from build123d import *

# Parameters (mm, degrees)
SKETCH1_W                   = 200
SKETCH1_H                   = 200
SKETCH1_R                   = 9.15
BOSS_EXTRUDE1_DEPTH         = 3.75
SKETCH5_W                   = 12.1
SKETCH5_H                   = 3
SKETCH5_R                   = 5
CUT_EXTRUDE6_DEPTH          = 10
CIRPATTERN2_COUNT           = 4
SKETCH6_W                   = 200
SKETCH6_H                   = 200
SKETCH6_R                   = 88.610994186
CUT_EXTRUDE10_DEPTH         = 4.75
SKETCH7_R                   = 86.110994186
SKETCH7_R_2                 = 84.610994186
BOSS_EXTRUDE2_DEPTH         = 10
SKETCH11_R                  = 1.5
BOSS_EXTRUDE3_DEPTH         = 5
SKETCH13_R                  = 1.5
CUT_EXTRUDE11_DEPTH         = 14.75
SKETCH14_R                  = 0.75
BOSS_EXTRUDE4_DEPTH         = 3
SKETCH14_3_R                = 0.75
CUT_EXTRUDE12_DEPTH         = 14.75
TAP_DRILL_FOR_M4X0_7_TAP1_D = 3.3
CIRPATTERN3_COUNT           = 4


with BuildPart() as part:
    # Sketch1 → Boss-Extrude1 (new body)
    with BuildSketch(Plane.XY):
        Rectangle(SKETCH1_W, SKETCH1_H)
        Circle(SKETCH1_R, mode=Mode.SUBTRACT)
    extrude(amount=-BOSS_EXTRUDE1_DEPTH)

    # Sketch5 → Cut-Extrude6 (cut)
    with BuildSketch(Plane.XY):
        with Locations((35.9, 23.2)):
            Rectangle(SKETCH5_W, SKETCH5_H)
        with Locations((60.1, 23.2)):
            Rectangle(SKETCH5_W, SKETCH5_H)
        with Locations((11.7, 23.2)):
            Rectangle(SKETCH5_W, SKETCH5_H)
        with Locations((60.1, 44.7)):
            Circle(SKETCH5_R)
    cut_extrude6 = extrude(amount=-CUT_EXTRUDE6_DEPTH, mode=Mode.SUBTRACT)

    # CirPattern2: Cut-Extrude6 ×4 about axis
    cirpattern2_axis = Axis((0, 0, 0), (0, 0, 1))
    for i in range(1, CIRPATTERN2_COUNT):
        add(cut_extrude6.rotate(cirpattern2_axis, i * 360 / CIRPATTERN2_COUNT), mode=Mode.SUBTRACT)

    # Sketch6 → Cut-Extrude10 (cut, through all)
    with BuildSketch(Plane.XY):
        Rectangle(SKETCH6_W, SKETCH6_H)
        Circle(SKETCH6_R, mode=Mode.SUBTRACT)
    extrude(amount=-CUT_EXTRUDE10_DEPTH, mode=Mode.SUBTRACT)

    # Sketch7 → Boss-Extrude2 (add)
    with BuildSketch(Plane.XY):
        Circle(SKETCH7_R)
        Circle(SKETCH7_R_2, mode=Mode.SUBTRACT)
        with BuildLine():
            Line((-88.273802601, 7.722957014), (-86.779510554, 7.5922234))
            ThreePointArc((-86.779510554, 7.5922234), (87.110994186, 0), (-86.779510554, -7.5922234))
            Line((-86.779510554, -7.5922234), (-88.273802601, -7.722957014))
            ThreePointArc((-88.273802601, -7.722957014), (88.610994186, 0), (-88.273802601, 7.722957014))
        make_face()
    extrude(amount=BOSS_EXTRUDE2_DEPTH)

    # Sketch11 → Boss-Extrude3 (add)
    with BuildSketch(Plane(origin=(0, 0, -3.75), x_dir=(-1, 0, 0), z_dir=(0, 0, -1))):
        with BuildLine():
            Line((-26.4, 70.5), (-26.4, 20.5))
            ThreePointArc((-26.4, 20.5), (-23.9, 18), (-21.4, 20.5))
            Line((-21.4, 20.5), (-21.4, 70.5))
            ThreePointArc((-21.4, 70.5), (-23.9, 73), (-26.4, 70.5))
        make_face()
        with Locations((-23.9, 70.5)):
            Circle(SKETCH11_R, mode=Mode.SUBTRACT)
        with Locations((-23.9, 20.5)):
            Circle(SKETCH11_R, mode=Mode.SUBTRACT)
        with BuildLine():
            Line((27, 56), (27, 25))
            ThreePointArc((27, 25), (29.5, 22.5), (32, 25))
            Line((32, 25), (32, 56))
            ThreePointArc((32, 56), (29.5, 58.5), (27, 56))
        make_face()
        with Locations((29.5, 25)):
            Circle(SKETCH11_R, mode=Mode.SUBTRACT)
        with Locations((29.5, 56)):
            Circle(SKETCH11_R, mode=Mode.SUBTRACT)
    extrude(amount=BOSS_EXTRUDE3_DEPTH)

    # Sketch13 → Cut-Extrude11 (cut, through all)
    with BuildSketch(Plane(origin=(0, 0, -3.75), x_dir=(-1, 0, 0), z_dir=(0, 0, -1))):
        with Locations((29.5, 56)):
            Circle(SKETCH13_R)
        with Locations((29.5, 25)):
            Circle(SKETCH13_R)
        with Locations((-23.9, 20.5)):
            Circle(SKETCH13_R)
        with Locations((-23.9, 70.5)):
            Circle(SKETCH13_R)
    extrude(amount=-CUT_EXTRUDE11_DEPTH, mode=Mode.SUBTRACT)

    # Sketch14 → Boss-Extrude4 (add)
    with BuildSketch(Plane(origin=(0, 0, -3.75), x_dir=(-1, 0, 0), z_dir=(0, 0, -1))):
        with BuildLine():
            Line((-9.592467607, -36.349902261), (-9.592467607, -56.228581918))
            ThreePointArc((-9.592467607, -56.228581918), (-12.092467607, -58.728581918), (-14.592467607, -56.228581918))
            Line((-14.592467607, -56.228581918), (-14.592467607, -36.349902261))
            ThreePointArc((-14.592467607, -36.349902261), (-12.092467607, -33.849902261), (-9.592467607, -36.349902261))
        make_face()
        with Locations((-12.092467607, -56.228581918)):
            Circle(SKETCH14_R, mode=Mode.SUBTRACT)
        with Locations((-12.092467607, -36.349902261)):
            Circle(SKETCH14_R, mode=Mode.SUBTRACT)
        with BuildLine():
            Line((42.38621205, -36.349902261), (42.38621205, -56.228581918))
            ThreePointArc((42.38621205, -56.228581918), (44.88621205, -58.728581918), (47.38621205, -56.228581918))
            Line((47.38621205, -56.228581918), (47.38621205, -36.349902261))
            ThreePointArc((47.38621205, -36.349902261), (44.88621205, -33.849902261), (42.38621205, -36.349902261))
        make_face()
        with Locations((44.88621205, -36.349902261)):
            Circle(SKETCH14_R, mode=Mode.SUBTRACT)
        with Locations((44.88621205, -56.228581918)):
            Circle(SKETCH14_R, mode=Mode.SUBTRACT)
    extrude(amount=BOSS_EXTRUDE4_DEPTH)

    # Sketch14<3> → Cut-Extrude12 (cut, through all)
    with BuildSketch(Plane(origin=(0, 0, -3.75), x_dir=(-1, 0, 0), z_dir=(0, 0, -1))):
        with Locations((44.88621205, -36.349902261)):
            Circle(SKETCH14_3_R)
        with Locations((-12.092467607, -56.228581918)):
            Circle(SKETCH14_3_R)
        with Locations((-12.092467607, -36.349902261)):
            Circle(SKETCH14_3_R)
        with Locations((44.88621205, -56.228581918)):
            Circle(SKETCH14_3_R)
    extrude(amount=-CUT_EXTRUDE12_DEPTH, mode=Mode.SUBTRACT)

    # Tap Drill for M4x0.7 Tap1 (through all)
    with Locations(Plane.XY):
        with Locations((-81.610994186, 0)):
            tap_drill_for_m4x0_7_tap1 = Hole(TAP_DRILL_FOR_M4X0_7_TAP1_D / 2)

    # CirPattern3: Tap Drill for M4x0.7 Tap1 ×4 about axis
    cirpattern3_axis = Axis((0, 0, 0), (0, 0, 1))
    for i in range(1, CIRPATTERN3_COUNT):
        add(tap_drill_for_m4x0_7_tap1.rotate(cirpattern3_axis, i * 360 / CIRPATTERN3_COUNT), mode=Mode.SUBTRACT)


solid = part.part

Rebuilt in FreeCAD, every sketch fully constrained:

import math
import FreeCAD as App
import Part
import Sketcher

V = App.Vector
Q = App.Units.Quantity


def add_polygon(sketch, points):
    """Adds a closed chain of lines whose ends are joined by coincident constraints."""
    first, n = sketch.GeometryCount, len(points)
    for a, b in zip(points, points[1:] + points[:1]):
        sketch.addGeometry(Part.LineSegment(App.Vector(*a, 0), App.Vector(*b, 0)), False)
    for i in range(n):
        sketch.addConstraint(Sketcher.Constraint("Coincident", first + i, 2, first + (i + 1) % n, 1))

doc = App.newDocument("Part")
body = doc.addObject("PartDesign::Body", "Body")

# Sketch on XY plane
sketch1 = body.newObject("Sketcher::SketchObject", "Sketch")
sketch1.AttachmentSupport = (doc.getObject("XY_Plane"), [""])
sketch1.MapMode = "FlatFace"
add_polygon(sketch1, [(-100, 100), (-100, -100), (100, -100), (100, 100)])  # lines 0-3
sketch1.addGeometry(Part.Circle(V(0, 0, 0), V(0, 0, 1), 9), False)  # 4
sketch1.addConstraint([
    Sketcher.Constraint("Vertical", 0),
    Sketcher.Constraint("Horizontal", 1),
    Sketcher.Constraint("Vertical", 2),
    Sketcher.Constraint("Horizontal", 3),
    Sketcher.Constraint("Coincident", 4, 3, -1, 1),
    Sketcher.Constraint("Symmetric", 0, 2, 2, 2, -1, 1),
    Sketcher.Constraint("Equal", 3, 0),
    Sketcher.Constraint("Diameter", 4, Q("18.3 mm")),
    Sketcher.Constraint("DistanceX", 1, 1, 1, 2, Q("200 mm")),
])
pad1 = body.newObject("PartDesign::Pad", "Pad")
pad1.Profile = sketch1
pad1.Length = 3.75
pad1.Reversed = True

# Sketch on XY plane
sketch2 = body.newObject("Sketcher::SketchObject", "Sketch001")
sketch2.AttachmentSupport = (doc.getObject("XY_Plane"), [""])
sketch2.MapMode = "FlatFace"
add_polygon(sketch2, [(29.9, 24.7), (29.9, 21.7), (42, 21.7), (42, 24.7)])  # lines 0-3
add_polygon(sketch2, [(54, 24.7), (54, 21.7), (66.2, 21.7), (66.2, 24.7)])  # lines 4-7
add_polygon(sketch2, [(5.7, 24.7), (5.7, 21.7), (17.8, 21.7), (17.8, 24.7)])  # lines 8-11
sketch2.addGeometry(Part.Circle(V(60.1, 44.7, 0), V(0, 0, 1), 5), False)  # 12
sketch2.addConstraint([
    Sketcher.Constraint("Vertical", 0),
    Sketcher.Constraint("Horizontal", 1),
    Sketcher.Constraint("Vertical", 2),
    Sketcher.Constraint("Horizontal", 3),
    Sketcher.Constraint("Vertical", 4),
    Sketcher.Constraint("Horizontal", 5),
    Sketcher.Constraint("Vertical", 6),
    Sketcher.Constraint("Horizontal", 7),
    Sketcher.Constraint("Vertical", 8),
    Sketcher.Constraint("Horizontal", 9),
    Sketcher.Constraint("Vertical", 10),
    Sketcher.Constraint("Horizontal", 11),
    Sketcher.Constraint("Horizontal", 1, 2, 4, 2),
    Sketcher.Constraint("Horizontal", 3, 2, 6, 2),
    Sketcher.Constraint("Horizontal", 5, 2, 8, 2),
    Sketcher.Constraint("Horizontal", 7, 2, 10, 2),
    Sketcher.Constraint("Equal", 3, 5),
    Sketcher.Constraint("Equal", 7, 9),
    Sketcher.Constraint("Diameter", 12, Q("10 mm")),
    Sketcher.Constraint("DistanceY", 0, 2, 0, 1, Q("3 mm")),
    Sketcher.Constraint("DistanceX", 1, 1, 1, 2, Q("12.1 mm")),
    Sketcher.Constraint("DistanceY", 0, 2, 12, 3, Q("23 mm")),
    Sketcher.Constraint("DistanceX", -1, 1, 12, 3, Q("60.1 mm")),
    Sketcher.Constraint("DistanceY", -1, 1, 12, 3, Q("44.7 mm")),
    Sketcher.Constraint("DistanceX", 1, 2, 4, 2, Q("12.1 mm")),
    Sketcher.Constraint("DistanceX", 8, 2, 0, 2, Q("24.2 mm")),
    Sketcher.Constraint("DistanceX", -1, 1, 0, 2, Q("29.85 mm")),
])
pocket1 = body.newObject("PartDesign::Pocket", "Pocket")
pocket1.Profile = sketch2
pocket1.Length = 10
doc.recompute()

polarpattern = body.newObject("PartDesign::PolarPattern", "PolarPattern")
polarpattern.Originals = [pocket1]
polarpattern.Axis = (doc.getObject("Z_Axis"), [""])
polarpattern.Angle = 360
polarpattern.Occurrences = 4
body.Tip = polarpattern

# Sketch on XY plane
sketch3 = body.newObject("Sketcher::SketchObject", "Sketch002")
sketch3.AttachmentSupport = (doc.getObject("XY_Plane"), [""])
sketch3.MapMode = "FlatFace"
add_polygon(sketch3, [(-100, 100), (-100, -100), (100, -100), (100, 100)])  # lines 0-3
sketch3.addGeometry(Part.Circle(V(0, 0, 0), V(0, 0, 1), 89), False)  # 4
sketch3.addConstraint([
    Sketcher.Constraint("Vertical", 0),
    Sketcher.Constraint("Horizontal", 1),
    Sketcher.Constraint("Vertical", 2),
    Sketcher.Constraint("Horizontal", 3),
    Sketcher.Constraint("Coincident", 4, 3, -1, 1),
    Sketcher.Constraint("Symmetric", 0, 2, 2, 2, -1, 1),
    Sketcher.Constraint("Equal", 3, 0),
    Sketcher.Constraint("DistanceX", 1, 1, 1, 2, Q("200 mm")),
    Sketcher.Constraint("Diameter", 4, Q("177.221988 mm")),
])
pocket2 = body.newObject("PartDesign::Pocket", "Pocket001")
pocket2.Profile = sketch3
pocket2.Type = "ThroughAll"

# Sketch on XY plane
sketch4 = body.newObject("Sketcher::SketchObject", "Sketch003")
sketch4.AttachmentSupport = (doc.getObject("XY_Plane"), [""])
sketch4.MapMode = "FlatFace"
sketch4.addGeometry([
    Part.Circle(V(0, 0, 0), V(0, 0, 1), 86.1),  # 0
    Part.Circle(V(0, 0, 0), V(0, 0, 1), 84.6),  # 1
    Part.LineSegment(V(-88.3, 7.7, 0), V(-86.8, 7.6, 0)),  # 2
    Part.ArcOfCircle(Part.Circle(V(0, 0, 0), V(0, 0, 1), 87.1), math.radians(-175), math.radians(175)),  # 3
    Part.LineSegment(V(-86.8, -7.6, 0), V(-88.3, -7.7, 0)),  # 4
    Part.ArcOfCircle(Part.Circle(V(0, 0, 0), V(0, 0, 1), 88.6), math.radians(-175), math.radians(175)),  # 5
], False)
sketch4.addConstraint([
    Sketcher.Constraint("Coincident", 2, 2, 3, 2),
    Sketcher.Constraint("Coincident", 3, 1, 4, 1),
    Sketcher.Constraint("Coincident", 4, 2, 5, 1),
    Sketcher.Constraint("Coincident", 5, 2, 2, 1),
    Sketcher.Constraint("Coincident", 0, 3, -1, 1),
    Sketcher.Constraint("Coincident", 1, 3, -1, 1),
    Sketcher.Constraint("Coincident", 3, 3, -1, 1),
    Sketcher.Constraint("Coincident", 5, 3, -1, 1),
    Sketcher.Constraint("Vertical", 2, 2, 3, 1),
    Sketcher.Constraint("Vertical", 4, 2, 5, 2),
    Sketcher.Constraint("Angle", 2, Q("-5 deg")),
    Sketcher.Constraint("Distance", 2, Q("1.5 mm")),
    Sketcher.Constraint("Diameter", 0, Q("172.221988 mm")),
    Sketcher.Constraint("Diameter", 1, Q("169.221988 mm")),
    Sketcher.Constraint("Radius", 3, Q("87.110994 mm")),
    Sketcher.Constraint("DistanceX", 2, 2, -1, 1, Q("86.779511 mm")),
])
pad2 = body.newObject("PartDesign::Pad", "Pad001")
pad2.Profile = sketch4
pad2.Length = 10

# Sketch on XY plane
sketch5 = body.newObject("Sketcher::SketchObject", "Sketch004")
sketch5.AttachmentSupport = (doc.getObject("XY_Plane"), [""])
sketch5.MapMode = "FlatFace"
sketch5.AttachmentOffset = App.Placement(V(0, 0, -3.75), App.Rotation())
sketch5.addGeometry([
    Part.LineSegment(V(26.4, 70.5, 0), V(26.4, 20.5, 0)),  # 0
    Part.ArcOfCircle(Part.Circle(V(23.9, 20.5, 0), V(0, 0, 1), 2.5), math.radians(180), math.radians(360)),  # 1
    Part.LineSegment(V(21.4, 20.5, 0), V(21.4, 70.5, 0)),  # 2
    Part.ArcOfCircle(Part.Circle(V(23.9, 70.5, 0), V(0, 0, 1), 2.5), math.radians(0), math.radians(180)),  # 3
    Part.Circle(V(23.9, 20.5, 0), V(0, 0, 1), 1.5),  # 4
    Part.Circle(V(23.9, 70.5, 0), V(0, 0, 1), 1.5),  # 5
    Part.LineSegment(V(-27, 56, 0), V(-27, 25, 0)),  # 6
    Part.ArcOfCircle(Part.Circle(V(-29.5, 25, 0), V(0, 0, 1), 2.5), math.radians(180), math.radians(360)),  # 7
    Part.LineSegment(V(-32, 25, 0), V(-32, 56, 0)),  # 8
    Part.ArcOfCircle(Part.Circle(V(-29.5, 56, 0), V(0, 0, 1), 2.5), math.radians(0), math.radians(180)),  # 9
    Part.Circle(V(-29.5, 25, 0), V(0, 0, 1), 1.5),  # 10
    Part.Circle(V(-29.5, 56, 0), V(0, 0, 1), 1.5),  # 11
], False)
sketch5.addConstraint([
    Sketcher.Constraint("Tangent", 0, 2, 1, 2),
    Sketcher.Constraint("Tangent", 1, 1, 2, 1),
    Sketcher.Constraint("Tangent", 2, 2, 3, 2),
    Sketcher.Constraint("Tangent", 3, 1, 0, 1),
    Sketcher.Constraint("Tangent", 6, 2, 7, 2),
    Sketcher.Constraint("Tangent", 7, 1, 8, 1),
    Sketcher.Constraint("Tangent", 8, 2, 9, 2),
    Sketcher.Constraint("Tangent", 9, 1, 6, 1),
    Sketcher.Constraint("Vertical", 0),
    Sketcher.Constraint("Vertical", 2),
    Sketcher.Constraint("Vertical", 6),
    Sketcher.Constraint("Vertical", 8),
    Sketcher.Constraint("Coincident", 4, 3, 1, 3),
    Sketcher.Constraint("Coincident", 5, 3, 3, 3),
    Sketcher.Constraint("Coincident", 10, 3, 7, 3),
    Sketcher.Constraint("Coincident", 11, 3, 9, 3),
    Sketcher.Constraint("Equal", 4, 5),
    Sketcher.Constraint("Equal", 3, 7),
    Sketcher.Constraint("Equal", 5, 10),
    Sketcher.Constraint("Equal", 10, 11),
    Sketcher.Constraint("Diameter", 4, Q("3 mm")),
    Sketcher.Constraint("Radius", 1, Q("2.5 mm")),
    Sketcher.Constraint("DistanceY", 0, 2, 0, 1, Q("50 mm")),
    Sketcher.Constraint("DistanceY", 6, 2, 6, 1, Q("31 mm")),
    Sketcher.Constraint("DistanceY", -1, 1, 7, 3, Q("25 mm")),
    Sketcher.Constraint("DistanceX", 6, 2, -1, 1, Q("27 mm")),
    Sketcher.Constraint("DistanceX", -1, 1, 1, 3, Q("23.9 mm")),
    Sketcher.Constraint("DistanceY", -1, 1, 1, 3, Q("20.5 mm")),
])
pad3 = body.newObject("PartDesign::Pad", "Pad002")
pad3.Profile = sketch5
pad3.Length = 5
pad3.Reversed = True

# Sketch on XY plane
sketch6 = body.newObject("Sketcher::SketchObject", "Sketch005")
sketch6.AttachmentSupport = (doc.getObject("XY_Plane"), [""])
sketch6.MapMode = "FlatFace"
sketch6.AttachmentOffset = App.Placement(V(0, 0, -3.75), App.Rotation())
sketch6.addGeometry([
    Part.Circle(V(-29.5, 56, 0), V(0, 0, 1), 1.5),
    Part.Circle(V(-29.5, 25, 0), V(0, 0, 1), 1.5),
    Part.Circle(V(23.9, 20.5, 0), V(0, 0, 1), 1.5),
    Part.Circle(V(23.9, 70.5, 0), V(0, 0, 1), 1.5),
], False)
sketch6.addConstraint([
    Sketcher.Constraint("Equal", 0, 1),
    Sketcher.Constraint("Equal", 1, 2),
    Sketcher.Constraint("Equal", 2, 3),
    Sketcher.Constraint("Vertical", 0, 3, 1, 3),
    Sketcher.Constraint("Vertical", 2, 3, 3, 3),
    Sketcher.Constraint("Diameter", 0, Q("3 mm")),
    Sketcher.Constraint("DistanceY", -1, 1, 0, 3, Q("56 mm")),
    Sketcher.Constraint("DistanceY", -1, 1, 1, 3, Q("25 mm")),
    Sketcher.Constraint("DistanceY", 2, 3, 3, 3, Q("50 mm")),
    Sketcher.Constraint("DistanceX", 0, 3, -1, 1, Q("29.5 mm")),
    Sketcher.Constraint("DistanceX", -1, 1, 2, 3, Q("23.9 mm")),
    Sketcher.Constraint("DistanceY", -1, 1, 2, 3, Q("20.5 mm")),
])
pocket3 = body.newObject("PartDesign::Pocket", "Pocket002")
pocket3.Profile = sketch6
pocket3.Type = "ThroughAll"
pocket3.Reversed = True

# Sketch on XY plane
sketch7 = body.newObject("Sketcher::SketchObject", "Sketch006")
sketch7.AttachmentSupport = (doc.getObject("XY_Plane"), [""])
sketch7.MapMode = "FlatFace"
sketch7.AttachmentOffset = App.Placement(V(0, 0, -3.75), App.Rotation())
sketch7.addGeometry([
    Part.LineSegment(V(9.6, -56.2, 0), V(9.6, -36.3, 0)),  # 0
    Part.ArcOfCircle(Part.Circle(V(12.1, -36.3, 0), V(0, 0, 1), 2.5), math.radians(0), math.radians(180)),  # 1
    Part.LineSegment(V(14.6, -36.3, 0), V(14.6, -56.2, 0)),  # 2
    Part.ArcOfCircle(Part.Circle(V(12.1, -56.2, 0), V(0, 0, 1), 2.5), math.radians(180), math.radians(360)),  # 3
    Part.Circle(V(12.1, -56.2, 0), V(0, 0, 1), 0.8),  # 4
    Part.Circle(V(12.1, -36.3, 0), V(0, 0, 1), 0.8),  # 5
    Part.LineSegment(V(-42.4, -36.3, 0), V(-42.4, -56.2, 0)),  # 6
    Part.ArcOfCircle(Part.Circle(V(-44.9, -56.2, 0), V(0, 0, 1), 2.5), math.radians(180), math.radians(360)),  # 7
    Part.LineSegment(V(-47.4, -56.2, 0), V(-47.4, -36.3, 0)),  # 8
    Part.ArcOfCircle(Part.Circle(V(-44.9, -36.3, 0), V(0, 0, 1), 2.5), math.radians(0), math.radians(180)),  # 9
    Part.Circle(V(-44.9, -56.2, 0), V(0, 0, 1), 0.8),  # 10
    Part.Circle(V(-44.9, -36.3, 0), V(0, 0, 1), 0.8),  # 11
], False)
sketch7.addConstraint([
    Sketcher.Constraint("Tangent", 0, 2, 1, 2),
    Sketcher.Constraint("Tangent", 1, 1, 2, 1),
    Sketcher.Constraint("Tangent", 2, 2, 3, 2),
    Sketcher.Constraint("Tangent", 3, 1, 0, 1),
    Sketcher.Constraint("Tangent", 6, 2, 7, 2),
    Sketcher.Constraint("Tangent", 7, 1, 8, 1),
    Sketcher.Constraint("Tangent", 8, 2, 9, 2),
    Sketcher.Constraint("Tangent", 9, 1, 6, 1),
    Sketcher.Constraint("Vertical", 0),
    Sketcher.Constraint("Vertical", 2),
    Sketcher.Constraint("Vertical", 6),
    Sketcher.Constraint("Vertical", 8),
    Sketcher.Constraint("Coincident", 4, 3, 3, 3),
    Sketcher.Constraint("Coincident", 5, 3, 1, 3),
    Sketcher.Constraint("Coincident", 10, 3, 7, 3),
    Sketcher.Constraint("Coincident", 11, 3, 9, 3),
    Sketcher.Constraint("Equal", 4, 5),
    Sketcher.Constraint("Equal", 3, 7),
    Sketcher.Constraint("Equal", 5, 10),
    Sketcher.Constraint("Equal", 10, 11),
    Sketcher.Constraint("Horizontal", 4, 3, 7, 3),
    Sketcher.Constraint("Horizontal", 5, 3, 9, 3),
    Sketcher.Constraint("Diameter", 4, Q("1.5 mm")),
    Sketcher.Constraint("Radius", 1, Q("2.5 mm")),
    Sketcher.Constraint("DistanceY", 0, 1, 0, 2, Q("19.87868 mm")),
    Sketcher.Constraint("DistanceY", 3, 3, -1, 1, Q("56.228582 mm")),
    Sketcher.Constraint("DistanceX", 7, 3, 3, 3, Q("56.97868 mm")),
    Sketcher.Constraint("DistanceX", -1, 1, 1, 3, Q("12.092468 mm")),
])
pad4 = body.newObject("PartDesign::Pad", "Pad003")
pad4.Profile = sketch7
pad4.Length = 3
pad4.Reversed = True

# Sketch on XY plane
sketch8 = body.newObject("Sketcher::SketchObject", "Sketch007")
sketch8.AttachmentSupport = (doc.getObject("XY_Plane"), [""])
sketch8.MapMode = "FlatFace"
sketch8.AttachmentOffset = App.Placement(V(0, 0, -3.75), App.Rotation())
sketch8.addGeometry([
    Part.Circle(V(-44.9, -36.3, 0), V(0, 0, 1), 0.8),
    Part.Circle(V(12.1, -56.2, 0), V(0, 0, 1), 0.8),
    Part.Circle(V(12.1, -36.3, 0), V(0, 0, 1), 0.8),
    Part.Circle(V(-44.9, -56.2, 0), V(0, 0, 1), 0.8),
], False)
sketch8.addConstraint([
    Sketcher.Constraint("Equal", 0, 1),
    Sketcher.Constraint("Equal", 1, 2),
    Sketcher.Constraint("Equal", 2, 3),
    Sketcher.Constraint("Horizontal", 0, 3, 2, 3),
    Sketcher.Constraint("Horizontal", 1, 3, 3, 3),
    Sketcher.Constraint("Vertical", 1, 3, 2, 3),
    Sketcher.Constraint("Vertical", 0, 3, 3, 3),
    Sketcher.Constraint("Diameter", 0, Q("1.5 mm")),
    Sketcher.Constraint("DistanceY", 1, 3, -1, 1, Q("56.228582 mm")),
    Sketcher.Constraint("DistanceX", 0, 3, 1, 3, Q("56.97868 mm")),
    Sketcher.Constraint("DistanceY", 1, 3, 0, 3, Q("19.87868 mm")),
    Sketcher.Constraint("DistanceX", 0, 3, -1, 1, Q("44.886212 mm")),
])
pocket4 = body.newObject("PartDesign::Pocket", "Pocket003")
pocket4.Profile = sketch8
pocket4.Type = "ThroughAll"
pocket4.Reversed = True

# Sketch on XY plane
sketch9 = body.newObject("Sketcher::SketchObject", "Sketch008")
sketch9.AttachmentSupport = (doc.getObject("XY_Plane"), [""])
sketch9.MapMode = "FlatFace"
sketch9.addGeometry(Part.Circle(V(-81.6, 0, 0), V(0, 0, 1), 1.6), False)
sketch9.addConstraint([
    Sketcher.Constraint("PointOnObject", 0, 3, -1),
    Sketcher.Constraint("Diameter", 0, Q("3.3 mm")),
    Sketcher.Constraint("DistanceX", 0, 3, -1, 1, Q("81.610994 mm")),
])
doc.recompute()
hole = body.newObject("PartDesign::Hole", "Hole")
hole.Profile = sketch9
hole.ThreadType = "None"
hole.Diameter = 3.3
hole.DepthType = "ThroughAll"
doc.recompute()

polarpattern2 = body.newObject("PartDesign::PolarPattern", "PolarPattern001")
polarpattern2.Originals = [hole]
polarpattern2.Axis = (doc.getObject("Z_Axis"), [""])
polarpattern2.Angle = 360
polarpattern2.Occurrences = 4
body.Tip = polarpattern2

doc.recompute()
